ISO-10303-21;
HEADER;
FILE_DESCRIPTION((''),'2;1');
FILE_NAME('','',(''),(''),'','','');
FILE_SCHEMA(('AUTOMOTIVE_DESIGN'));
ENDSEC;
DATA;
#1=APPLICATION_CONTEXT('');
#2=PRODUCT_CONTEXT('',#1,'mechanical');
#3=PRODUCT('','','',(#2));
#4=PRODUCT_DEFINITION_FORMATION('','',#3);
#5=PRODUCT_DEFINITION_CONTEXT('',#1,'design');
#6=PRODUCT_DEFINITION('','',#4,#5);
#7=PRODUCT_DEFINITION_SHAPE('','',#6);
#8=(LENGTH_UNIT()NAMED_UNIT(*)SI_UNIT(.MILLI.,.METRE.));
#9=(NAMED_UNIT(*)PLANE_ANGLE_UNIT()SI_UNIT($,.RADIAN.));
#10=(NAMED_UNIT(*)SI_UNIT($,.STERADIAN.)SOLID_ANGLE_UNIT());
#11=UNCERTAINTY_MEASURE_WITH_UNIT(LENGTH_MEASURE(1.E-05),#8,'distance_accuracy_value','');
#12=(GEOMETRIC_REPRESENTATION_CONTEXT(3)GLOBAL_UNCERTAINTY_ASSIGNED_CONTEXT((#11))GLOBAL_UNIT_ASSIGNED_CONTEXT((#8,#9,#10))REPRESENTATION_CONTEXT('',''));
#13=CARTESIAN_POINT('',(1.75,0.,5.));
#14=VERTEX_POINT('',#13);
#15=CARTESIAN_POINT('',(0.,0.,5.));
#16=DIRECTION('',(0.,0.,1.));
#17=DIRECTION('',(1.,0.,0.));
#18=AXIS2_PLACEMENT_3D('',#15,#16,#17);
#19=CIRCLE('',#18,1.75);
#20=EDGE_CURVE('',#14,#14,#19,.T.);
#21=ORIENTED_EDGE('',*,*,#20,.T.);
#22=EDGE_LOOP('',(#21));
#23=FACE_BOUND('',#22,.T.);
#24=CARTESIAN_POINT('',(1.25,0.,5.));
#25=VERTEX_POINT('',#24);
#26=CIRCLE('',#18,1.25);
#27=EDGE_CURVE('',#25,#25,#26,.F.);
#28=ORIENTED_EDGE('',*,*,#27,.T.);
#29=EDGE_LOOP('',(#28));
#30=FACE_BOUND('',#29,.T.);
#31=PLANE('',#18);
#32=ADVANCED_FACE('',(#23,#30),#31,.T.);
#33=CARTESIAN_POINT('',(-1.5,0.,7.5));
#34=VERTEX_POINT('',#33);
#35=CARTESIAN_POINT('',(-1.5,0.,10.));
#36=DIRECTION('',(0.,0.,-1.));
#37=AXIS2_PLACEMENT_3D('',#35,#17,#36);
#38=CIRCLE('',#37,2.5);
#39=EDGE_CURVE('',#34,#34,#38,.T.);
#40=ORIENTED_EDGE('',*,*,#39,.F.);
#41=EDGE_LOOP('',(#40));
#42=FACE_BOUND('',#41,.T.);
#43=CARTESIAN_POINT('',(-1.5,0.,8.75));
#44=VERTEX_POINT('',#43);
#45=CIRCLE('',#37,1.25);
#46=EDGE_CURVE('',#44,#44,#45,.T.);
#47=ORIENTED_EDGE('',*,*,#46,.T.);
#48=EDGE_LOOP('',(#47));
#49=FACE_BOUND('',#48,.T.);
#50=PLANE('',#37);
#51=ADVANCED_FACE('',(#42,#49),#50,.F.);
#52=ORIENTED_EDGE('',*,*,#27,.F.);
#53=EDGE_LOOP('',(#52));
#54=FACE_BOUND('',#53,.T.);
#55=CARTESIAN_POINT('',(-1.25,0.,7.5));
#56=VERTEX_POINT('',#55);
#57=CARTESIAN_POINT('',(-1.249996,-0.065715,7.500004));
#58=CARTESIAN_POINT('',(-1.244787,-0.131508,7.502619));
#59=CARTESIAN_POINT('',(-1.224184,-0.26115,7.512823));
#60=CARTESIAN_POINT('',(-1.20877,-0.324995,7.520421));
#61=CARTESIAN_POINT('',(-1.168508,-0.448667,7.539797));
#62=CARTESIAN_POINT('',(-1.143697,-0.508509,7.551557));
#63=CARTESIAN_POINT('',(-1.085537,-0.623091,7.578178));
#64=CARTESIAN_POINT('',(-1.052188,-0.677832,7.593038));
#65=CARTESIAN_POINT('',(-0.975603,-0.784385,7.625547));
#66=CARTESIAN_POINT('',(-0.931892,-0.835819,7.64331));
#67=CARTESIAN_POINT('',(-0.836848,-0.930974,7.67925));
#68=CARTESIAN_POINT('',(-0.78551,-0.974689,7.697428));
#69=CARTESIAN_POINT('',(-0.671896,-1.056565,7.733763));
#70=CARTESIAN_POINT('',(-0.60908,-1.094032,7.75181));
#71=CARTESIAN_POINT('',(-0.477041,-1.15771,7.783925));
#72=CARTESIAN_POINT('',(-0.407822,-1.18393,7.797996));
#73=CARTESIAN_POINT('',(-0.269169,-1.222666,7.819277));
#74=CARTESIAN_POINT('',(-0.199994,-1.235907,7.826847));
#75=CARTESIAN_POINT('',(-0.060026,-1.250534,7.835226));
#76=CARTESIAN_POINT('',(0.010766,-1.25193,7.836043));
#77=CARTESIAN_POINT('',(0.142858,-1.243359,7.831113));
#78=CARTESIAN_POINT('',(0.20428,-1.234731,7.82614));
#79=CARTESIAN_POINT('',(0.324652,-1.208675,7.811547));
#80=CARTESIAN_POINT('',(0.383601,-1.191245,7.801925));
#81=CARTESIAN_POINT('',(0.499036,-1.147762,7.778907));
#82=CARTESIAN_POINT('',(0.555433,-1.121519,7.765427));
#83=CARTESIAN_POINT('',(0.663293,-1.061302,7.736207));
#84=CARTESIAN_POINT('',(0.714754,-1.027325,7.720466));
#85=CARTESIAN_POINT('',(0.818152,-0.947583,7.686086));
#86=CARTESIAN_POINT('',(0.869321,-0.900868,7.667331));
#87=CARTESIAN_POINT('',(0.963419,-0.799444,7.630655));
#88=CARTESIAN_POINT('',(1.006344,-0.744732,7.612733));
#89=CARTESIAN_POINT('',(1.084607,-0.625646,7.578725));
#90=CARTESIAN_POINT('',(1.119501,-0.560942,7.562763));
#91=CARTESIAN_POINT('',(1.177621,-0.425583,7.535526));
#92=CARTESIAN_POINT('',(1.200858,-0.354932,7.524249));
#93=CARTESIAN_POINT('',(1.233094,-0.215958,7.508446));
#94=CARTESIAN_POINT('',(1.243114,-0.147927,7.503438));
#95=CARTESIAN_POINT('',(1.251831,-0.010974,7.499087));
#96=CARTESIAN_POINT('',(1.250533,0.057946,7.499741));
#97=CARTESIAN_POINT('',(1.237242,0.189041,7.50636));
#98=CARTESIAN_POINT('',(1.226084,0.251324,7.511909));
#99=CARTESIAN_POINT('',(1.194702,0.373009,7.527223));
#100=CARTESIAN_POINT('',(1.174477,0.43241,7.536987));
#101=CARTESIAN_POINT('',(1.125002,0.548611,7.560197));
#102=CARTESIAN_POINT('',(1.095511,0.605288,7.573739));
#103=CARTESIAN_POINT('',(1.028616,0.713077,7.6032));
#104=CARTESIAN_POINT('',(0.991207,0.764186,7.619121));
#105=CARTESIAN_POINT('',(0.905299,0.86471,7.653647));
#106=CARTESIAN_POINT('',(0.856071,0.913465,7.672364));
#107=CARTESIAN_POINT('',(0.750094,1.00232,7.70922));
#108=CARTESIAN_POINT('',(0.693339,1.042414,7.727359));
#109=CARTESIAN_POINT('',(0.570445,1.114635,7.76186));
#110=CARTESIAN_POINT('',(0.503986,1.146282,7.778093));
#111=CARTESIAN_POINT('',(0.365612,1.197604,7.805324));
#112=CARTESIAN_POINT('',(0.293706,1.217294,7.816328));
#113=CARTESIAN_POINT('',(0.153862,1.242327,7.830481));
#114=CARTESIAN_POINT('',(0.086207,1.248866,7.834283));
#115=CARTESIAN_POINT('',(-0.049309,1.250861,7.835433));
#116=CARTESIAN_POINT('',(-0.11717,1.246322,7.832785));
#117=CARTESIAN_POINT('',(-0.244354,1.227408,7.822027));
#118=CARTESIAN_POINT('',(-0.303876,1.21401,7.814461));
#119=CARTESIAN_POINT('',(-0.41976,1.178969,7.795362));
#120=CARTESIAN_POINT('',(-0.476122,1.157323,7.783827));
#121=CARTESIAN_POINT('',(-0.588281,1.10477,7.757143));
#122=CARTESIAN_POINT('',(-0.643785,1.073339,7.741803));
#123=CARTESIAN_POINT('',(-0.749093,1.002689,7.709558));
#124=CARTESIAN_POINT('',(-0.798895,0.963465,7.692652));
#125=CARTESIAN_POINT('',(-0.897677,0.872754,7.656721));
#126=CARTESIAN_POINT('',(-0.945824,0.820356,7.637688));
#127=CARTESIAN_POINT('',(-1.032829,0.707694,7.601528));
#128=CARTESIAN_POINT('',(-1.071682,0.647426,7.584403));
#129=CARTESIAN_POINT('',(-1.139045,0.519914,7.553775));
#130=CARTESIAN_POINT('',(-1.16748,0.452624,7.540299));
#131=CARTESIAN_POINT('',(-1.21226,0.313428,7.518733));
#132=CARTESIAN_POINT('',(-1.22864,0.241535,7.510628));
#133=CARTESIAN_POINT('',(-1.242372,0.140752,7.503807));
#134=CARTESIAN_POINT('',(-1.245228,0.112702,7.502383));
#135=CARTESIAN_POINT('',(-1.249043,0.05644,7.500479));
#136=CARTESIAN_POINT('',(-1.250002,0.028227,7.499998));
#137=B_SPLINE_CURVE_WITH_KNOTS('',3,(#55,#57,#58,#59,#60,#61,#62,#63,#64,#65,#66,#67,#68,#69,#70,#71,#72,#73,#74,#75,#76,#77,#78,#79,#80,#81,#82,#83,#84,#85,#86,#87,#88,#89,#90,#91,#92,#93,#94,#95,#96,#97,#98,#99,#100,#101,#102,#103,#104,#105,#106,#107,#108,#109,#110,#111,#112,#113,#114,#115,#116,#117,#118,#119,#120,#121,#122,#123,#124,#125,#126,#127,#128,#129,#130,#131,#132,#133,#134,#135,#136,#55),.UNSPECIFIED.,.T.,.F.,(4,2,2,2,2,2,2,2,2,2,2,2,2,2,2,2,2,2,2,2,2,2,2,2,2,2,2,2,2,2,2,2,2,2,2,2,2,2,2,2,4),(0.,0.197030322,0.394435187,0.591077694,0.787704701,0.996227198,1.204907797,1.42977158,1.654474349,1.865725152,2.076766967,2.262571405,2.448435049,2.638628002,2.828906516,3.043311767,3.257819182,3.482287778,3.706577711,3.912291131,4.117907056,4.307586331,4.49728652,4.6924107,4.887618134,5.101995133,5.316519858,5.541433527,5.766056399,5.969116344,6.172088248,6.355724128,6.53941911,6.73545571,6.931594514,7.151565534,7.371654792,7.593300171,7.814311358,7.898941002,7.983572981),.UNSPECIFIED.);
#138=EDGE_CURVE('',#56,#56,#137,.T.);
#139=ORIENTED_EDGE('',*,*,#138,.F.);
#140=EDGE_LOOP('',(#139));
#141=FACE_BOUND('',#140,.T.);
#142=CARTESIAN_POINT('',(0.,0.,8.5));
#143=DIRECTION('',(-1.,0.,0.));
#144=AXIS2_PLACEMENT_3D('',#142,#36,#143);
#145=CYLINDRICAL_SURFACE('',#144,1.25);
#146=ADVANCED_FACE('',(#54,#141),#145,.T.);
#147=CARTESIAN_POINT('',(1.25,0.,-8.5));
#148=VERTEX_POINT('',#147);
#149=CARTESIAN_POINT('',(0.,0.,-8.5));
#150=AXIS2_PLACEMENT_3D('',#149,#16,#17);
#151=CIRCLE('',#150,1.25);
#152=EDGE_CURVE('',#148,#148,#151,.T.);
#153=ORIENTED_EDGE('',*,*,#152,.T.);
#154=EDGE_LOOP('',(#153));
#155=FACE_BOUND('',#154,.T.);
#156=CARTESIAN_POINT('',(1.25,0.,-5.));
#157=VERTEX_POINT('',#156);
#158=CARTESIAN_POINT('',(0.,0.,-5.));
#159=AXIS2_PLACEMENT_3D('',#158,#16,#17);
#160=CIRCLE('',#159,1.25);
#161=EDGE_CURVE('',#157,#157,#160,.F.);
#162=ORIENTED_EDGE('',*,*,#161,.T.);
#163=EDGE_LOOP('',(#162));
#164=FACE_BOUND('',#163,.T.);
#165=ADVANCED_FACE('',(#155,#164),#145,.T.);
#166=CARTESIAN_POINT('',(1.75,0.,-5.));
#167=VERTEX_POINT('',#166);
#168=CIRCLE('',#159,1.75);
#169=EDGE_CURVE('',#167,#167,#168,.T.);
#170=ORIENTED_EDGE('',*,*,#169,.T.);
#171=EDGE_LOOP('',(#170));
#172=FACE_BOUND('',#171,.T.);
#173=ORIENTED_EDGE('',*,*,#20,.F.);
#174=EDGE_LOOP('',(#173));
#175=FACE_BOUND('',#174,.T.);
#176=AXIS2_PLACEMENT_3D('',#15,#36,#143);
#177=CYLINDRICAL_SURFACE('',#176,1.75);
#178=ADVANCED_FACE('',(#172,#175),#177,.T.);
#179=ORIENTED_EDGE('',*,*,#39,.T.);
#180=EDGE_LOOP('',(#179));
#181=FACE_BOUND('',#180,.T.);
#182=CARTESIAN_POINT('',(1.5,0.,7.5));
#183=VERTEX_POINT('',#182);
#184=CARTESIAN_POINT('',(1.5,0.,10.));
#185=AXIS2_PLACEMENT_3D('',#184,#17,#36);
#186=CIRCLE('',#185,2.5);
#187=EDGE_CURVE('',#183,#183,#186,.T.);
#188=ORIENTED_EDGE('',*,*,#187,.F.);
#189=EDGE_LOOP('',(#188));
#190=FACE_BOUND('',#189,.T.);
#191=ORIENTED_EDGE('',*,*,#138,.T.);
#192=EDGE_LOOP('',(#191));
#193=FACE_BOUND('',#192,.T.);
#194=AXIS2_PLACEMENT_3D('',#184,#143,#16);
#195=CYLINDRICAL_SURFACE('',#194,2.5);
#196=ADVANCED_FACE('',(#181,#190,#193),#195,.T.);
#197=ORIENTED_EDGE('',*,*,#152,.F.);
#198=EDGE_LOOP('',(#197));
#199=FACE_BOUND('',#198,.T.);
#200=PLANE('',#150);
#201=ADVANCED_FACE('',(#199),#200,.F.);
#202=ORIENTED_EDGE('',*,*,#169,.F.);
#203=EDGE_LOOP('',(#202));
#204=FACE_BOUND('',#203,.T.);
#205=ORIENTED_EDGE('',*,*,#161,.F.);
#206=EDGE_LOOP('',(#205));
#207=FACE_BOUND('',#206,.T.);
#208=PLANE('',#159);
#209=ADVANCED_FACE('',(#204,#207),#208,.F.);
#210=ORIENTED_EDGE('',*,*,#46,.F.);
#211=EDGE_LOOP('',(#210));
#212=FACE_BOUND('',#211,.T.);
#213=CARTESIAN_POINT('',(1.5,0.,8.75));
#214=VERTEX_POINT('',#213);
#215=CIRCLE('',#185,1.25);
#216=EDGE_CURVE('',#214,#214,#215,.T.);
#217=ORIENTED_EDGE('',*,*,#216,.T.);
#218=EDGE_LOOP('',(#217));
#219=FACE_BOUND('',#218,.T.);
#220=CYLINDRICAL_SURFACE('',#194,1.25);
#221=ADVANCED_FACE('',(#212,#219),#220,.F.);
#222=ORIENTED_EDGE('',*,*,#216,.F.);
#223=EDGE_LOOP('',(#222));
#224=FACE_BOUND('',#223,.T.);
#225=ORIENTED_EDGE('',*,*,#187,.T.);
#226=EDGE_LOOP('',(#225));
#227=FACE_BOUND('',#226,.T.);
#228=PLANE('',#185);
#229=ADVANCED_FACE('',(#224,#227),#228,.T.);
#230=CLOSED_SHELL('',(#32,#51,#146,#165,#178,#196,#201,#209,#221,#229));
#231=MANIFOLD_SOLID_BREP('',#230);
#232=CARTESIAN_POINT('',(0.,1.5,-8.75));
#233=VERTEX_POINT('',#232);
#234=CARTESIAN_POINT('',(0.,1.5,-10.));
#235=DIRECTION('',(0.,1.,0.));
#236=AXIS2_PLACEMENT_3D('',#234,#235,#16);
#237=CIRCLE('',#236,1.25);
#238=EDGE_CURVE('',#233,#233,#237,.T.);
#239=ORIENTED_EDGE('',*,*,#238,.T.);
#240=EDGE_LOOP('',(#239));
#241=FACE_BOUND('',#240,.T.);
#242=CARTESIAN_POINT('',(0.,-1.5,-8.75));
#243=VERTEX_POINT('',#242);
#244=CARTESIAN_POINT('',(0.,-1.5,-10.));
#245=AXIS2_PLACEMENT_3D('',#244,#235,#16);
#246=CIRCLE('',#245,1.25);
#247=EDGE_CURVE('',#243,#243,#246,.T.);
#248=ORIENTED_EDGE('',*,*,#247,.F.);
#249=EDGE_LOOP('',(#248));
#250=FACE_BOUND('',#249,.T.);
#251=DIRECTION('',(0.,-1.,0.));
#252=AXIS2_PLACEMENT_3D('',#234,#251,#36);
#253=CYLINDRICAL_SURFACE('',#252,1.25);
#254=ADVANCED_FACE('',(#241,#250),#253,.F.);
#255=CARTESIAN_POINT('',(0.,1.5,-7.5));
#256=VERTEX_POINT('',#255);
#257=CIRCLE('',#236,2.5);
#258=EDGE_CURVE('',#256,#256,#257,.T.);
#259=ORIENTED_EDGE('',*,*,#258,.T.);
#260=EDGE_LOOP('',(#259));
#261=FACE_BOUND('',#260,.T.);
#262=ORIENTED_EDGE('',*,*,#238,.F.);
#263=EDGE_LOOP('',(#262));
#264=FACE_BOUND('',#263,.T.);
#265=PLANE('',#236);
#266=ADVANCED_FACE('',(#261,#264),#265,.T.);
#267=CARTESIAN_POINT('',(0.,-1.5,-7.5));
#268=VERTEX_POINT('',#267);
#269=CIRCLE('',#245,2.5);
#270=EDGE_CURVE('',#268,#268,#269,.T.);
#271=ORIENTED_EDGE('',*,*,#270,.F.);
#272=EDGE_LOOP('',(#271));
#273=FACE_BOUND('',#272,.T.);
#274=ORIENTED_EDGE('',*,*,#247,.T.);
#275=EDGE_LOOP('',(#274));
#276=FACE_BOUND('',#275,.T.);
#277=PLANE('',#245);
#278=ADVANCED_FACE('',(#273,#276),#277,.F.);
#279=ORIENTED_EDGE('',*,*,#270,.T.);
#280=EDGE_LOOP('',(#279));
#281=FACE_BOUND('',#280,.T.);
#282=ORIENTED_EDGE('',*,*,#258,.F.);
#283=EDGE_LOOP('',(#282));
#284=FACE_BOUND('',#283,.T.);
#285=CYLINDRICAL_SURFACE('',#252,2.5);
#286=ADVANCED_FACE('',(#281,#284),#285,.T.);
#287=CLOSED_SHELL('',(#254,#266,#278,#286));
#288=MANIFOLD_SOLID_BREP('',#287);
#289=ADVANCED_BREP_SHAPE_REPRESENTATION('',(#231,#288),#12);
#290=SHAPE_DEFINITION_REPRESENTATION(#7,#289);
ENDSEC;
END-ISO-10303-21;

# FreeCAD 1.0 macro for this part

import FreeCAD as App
import Part
import Sketcher
Q = App.Units.Quantity

doc = App.newDocument("Part")
body = doc.addObject("PartDesign::Body", "Body")

sketch1 = body.newObject("Sketcher::SketchObject", "Sketch")
sketch1.AttachmentSupport = (doc.getObject("XY_Plane"), [""])
sketch1.MapMode = "FlatFace"
sketch1.addGeometry(Part.Circle(App.Vector(0, 0, 0), App.Vector(0, 0, 1), 1.8), False)
sketch1.addConstraint(Sketcher.Constraint("Coincident", 0, 3, -1, 1))
sketch1.addConstraint(Sketcher.Constraint("Diameter", 0, Q("3.5 mm")))
pad1 = body.newObject("PartDesign::Pad", "Pad")
pad1.Profile = sketch1
pad1.Length = 10
pad1.Midplane = True

sketch2 = body.newObject("Sketcher::SketchObject", "Sketch001")
sketch2.AttachmentSupport = (doc.getObject("XY_Plane"), [""])
sketch2.MapMode = "FlatFace"
sketch2.addGeometry(Part.Circle(App.Vector(0, 0, 0), App.Vector(0, 0, 1), 1.2), False)
sketch2.addConstraint(Sketcher.Constraint("Coincident", 0, 3, -1, 1))
sketch2.addConstraint(Sketcher.Constraint("Diameter", 0, Q("2.5 mm")))
pad2 = body.newObject("PartDesign::Pad", "Pad001")
pad2.Profile = sketch2
pad2.Length = 17
pad2.Midplane = True

sketch3 = body.newObject("Sketcher::SketchObject", "Sketch002")
sketch3.AttachmentSupport = (doc.getObject("YZ_Plane"), [""])
sketch3.MapMode = "FlatFace"
sketch3.addGeometry(Part.Circle(App.Vector(0, 10, 0), App.Vector(0, 0, 1), 2.5), False)
sketch3.addGeometry(Part.Circle(App.Vector(0, 10, 0), App.Vector(0, 0, 1), 1.2), False)
sketch3.addConstraint(Sketcher.Constraint("Coincident", 1, 3, 0, 3))
sketch3.addConstraint(Sketcher.Constraint("PointOnObject", 0, 3, -2))
sketch3.addConstraint(Sketcher.Constraint("Diameter", 0, Q("5 mm")))
sketch3.addConstraint(Sketcher.Constraint("Diameter", 1, Q("2.5 mm")))
sketch3.addConstraint(Sketcher.Constraint("DistanceY", -1, 1, 0, 3, Q("10 mm")))
pad3 = body.newObject("PartDesign::Pad", "Pad002")
pad3.Profile = sketch3
pad3.Length = 3
pad3.Midplane = True
body2 = doc.addObject("PartDesign::Body", "Body001")

sketch4 = body2.newObject("Sketcher::SketchObject", "Sketch003")
sketch4.AttachmentSupport = (doc.getObject("XZ_Plane001"), [""])
sketch4.MapMode = "FlatFace"
sketch4.addGeometry(Part.Circle(App.Vector(0, -10, 0), App.Vector(0, 0, 1), 2.5), False)
sketch4.addGeometry(Part.Circle(App.Vector(0, -10, 0), App.Vector(0, 0, 1), 1.2), False)
sketch4.addConstraint(Sketcher.Constraint("Coincident", 1, 3, 0, 3))
sketch4.addConstraint(Sketcher.Constraint("PointOnObject", 0, 3, -2))
sketch4.addConstraint(Sketcher.Constraint("Diameter", 0, Q("5 mm")))
sketch4.addConstraint(Sketcher.Constraint("Diameter", 1, Q("2.5 mm")))
sketch4.addConstraint(Sketcher.Constraint("DistanceY", 0, 3, -1, 1, Q("10 mm")))
pad4 = body2.newObject("PartDesign::Pad", "Pad003")
pad4.Profile = sketch4
pad4.Length = 3
pad4.Midplane = True

doc.recompute()
